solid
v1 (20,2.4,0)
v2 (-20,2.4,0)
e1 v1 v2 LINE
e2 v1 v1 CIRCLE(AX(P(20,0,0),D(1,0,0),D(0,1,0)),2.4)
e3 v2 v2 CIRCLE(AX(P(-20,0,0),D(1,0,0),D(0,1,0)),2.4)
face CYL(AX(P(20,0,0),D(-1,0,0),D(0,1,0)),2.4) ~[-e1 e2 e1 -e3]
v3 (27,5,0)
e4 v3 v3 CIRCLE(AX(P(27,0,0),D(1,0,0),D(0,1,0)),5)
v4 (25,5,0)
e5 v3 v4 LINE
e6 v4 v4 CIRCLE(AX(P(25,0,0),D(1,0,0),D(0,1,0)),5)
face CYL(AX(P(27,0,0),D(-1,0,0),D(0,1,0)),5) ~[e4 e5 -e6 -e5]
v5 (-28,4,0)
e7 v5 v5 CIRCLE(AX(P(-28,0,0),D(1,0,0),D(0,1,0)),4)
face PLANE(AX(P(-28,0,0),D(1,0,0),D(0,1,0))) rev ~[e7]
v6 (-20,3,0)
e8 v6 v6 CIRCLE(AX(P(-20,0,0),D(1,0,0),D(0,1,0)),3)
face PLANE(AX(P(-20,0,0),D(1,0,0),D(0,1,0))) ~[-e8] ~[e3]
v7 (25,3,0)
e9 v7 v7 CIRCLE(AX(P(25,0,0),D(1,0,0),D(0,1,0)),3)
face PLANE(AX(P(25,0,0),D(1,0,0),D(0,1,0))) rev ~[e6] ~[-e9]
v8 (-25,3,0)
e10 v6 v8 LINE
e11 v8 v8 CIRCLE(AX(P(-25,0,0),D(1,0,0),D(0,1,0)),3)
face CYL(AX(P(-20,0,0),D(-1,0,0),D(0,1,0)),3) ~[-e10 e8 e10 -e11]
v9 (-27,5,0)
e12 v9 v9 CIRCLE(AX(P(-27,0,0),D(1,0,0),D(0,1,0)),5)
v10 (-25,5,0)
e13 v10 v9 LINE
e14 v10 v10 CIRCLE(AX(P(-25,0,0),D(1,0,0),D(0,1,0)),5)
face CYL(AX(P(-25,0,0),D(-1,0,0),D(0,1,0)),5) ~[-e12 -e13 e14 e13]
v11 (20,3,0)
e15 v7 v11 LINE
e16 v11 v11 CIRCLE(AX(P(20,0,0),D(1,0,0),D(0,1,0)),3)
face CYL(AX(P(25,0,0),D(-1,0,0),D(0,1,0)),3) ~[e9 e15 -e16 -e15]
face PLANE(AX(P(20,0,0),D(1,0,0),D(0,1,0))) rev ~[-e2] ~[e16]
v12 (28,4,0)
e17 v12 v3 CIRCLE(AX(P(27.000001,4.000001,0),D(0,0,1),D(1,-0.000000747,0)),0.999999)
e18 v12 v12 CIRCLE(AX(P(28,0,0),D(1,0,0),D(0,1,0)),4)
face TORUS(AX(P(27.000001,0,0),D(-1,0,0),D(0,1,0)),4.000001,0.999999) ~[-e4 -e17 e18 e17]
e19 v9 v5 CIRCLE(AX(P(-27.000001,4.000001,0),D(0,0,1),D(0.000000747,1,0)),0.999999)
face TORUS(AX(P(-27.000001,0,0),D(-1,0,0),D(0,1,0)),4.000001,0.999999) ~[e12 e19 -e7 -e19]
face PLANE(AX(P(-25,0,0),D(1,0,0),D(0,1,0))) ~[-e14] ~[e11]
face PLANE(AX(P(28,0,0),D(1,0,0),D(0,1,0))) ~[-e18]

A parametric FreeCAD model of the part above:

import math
import FreeCAD as App
import Part
import Sketcher

V = App.Vector

doc = App.newDocument("Part")
body = doc.addObject("PartDesign::Body", "Body")

# Sketch on XY plane
sketch1 = body.newObject("Sketcher::SketchObject", "Sketch")
sketch1.AttachmentSupport = (doc.getObject("XY_Plane"), [""])
sketch1.MapMode = "FlatFace"
sketch1.addGeometry([
    Part.LineSegment(V(-28, 4, 0), V(-28, 0, 0)),  # 0
    Part.LineSegment(V(-28, 0, 0), V(28, 0, 0)),  # 1
    Part.LineSegment(V(28, 0, 0), V(28, 4, 0)),  # 2
    Part.ArcOfCircle(Part.Circle(V(27, 4, 0), V(0, 0, 1), 1), math.radians(0), math.radians(90)),  # 3
    Part.LineSegment(V(27, 5, 0), V(25, 5, 0)),  # 4
    Part.LineSegment(V(25, 5, 0), V(25, 3, 0)),  # 5
    Part.LineSegment(V(25, 3, 0), V(20, 3, 0)),  # 6
    Part.LineSegment(V(20, 3, 0), V(20, 2.4, 0)),  # 7
    Part.LineSegment(V(20, 2.4, 0), V(-20, 2.4, 0)),  # 8
    Part.LineSegment(V(-20, 2.4, 0), V(-20, 3, 0)),  # 9
    Part.LineSegment(V(-20, 3, 0), V(-25, 3, 0)),  # 10
    Part.LineSegment(V(-25, 3, 0), V(-25, 5, 0)),  # 11
    Part.LineSegment(V(-25, 5, 0), V(-27, 5, 0)),  # 12
    Part.ArcOfCircle(Part.Circle(V(-27, 4, 0), V(0, 0, 1), 1), math.radians(90), math.radians(180)),  # 13
], False)
sketch1.addConstraint([
    Sketcher.Constraint("Coincident", 0, 2, 1, 1),
    Sketcher.Constraint("Coincident", 1, 2, 2, 1),
    Sketcher.Constraint("Tangent", 2, 2, 3, 1),
    Sketcher.Constraint("Tangent", 3, 2, 4, 1),
    Sketcher.Constraint("Coincident", 4, 2, 5, 1),
    Sketcher.Constraint("Coincident", 5, 2, 6, 1),
    Sketcher.Constraint("Coincident", 6, 2, 7, 1),
    Sketcher.Constraint("Coincident", 7, 2, 8, 1),
    Sketcher.Constraint("Coincident", 8, 2, 9, 1),
    Sketcher.Constraint("Coincident", 9, 2, 10, 1),
    Sketcher.Constraint("Coincident", 10, 2, 11, 1),
    Sketcher.Constraint("Coincident", 11, 2, 12, 1),
    Sketcher.Constraint("Tangent", 12, 2, 13, 1),
    Sketcher.Constraint("Tangent", 13, 2, 0, 1),
    Sketcher.Constraint("Vertical", 0),
    Sketcher.Constraint("Horizontal", 1),
    Sketcher.Constraint("Vertical", 2),
    Sketcher.Constraint("Horizontal", 4),
    Sketcher.Constraint("Vertical", 5),
    Sketcher.Constraint("Horizontal", 6),
    Sketcher.Constraint("Vertical", 7),
    Sketcher.Constraint("Horizontal", 8),
    Sketcher.Constraint("Vertical", 9),
    Sketcher.Constraint("Horizontal", 10),
    Sketcher.Constraint("Vertical", 11),
    Sketcher.Constraint("Horizontal", 12),
    Sketcher.Constraint("Equal", 3, 13),
    Sketcher.Constraint("Symmetric", 0, 2, 1, 2, -1, 1),
    Sketcher.Constraint("Symmetric", 6, 2, 9, 2, -2),
    Sketcher.Constraint("Symmetric", 4, 2, 11, 2, -2),
    Sketcher.Constraint("Equal", 12, 5),
    Sketcher.Constraint("Radius", 3, 0.999999),
    Sketcher.Constraint("DistanceX", 1, 1, 1, 2, 56.0),
    Sketcher.Constraint("DistanceX", 4, 2, 4, 1, 2.0),
    Sketcher.Constraint("DistanceX", 6, 2, 6, 1, 5.0),
    Sketcher.Constraint("DistanceY", 0, 2, 0, 1, 4.0),
    Sketcher.Constraint("DistanceY", 7, 2, 7, 1, 0.6),
])
revolution = body.newObject("PartDesign::Revolution", "Revolution")
revolution.Profile = sketch1
revolution.ReferenceAxis = (sketch1, ["H_Axis"])
revolution.Angle = 360

doc.recompute()
